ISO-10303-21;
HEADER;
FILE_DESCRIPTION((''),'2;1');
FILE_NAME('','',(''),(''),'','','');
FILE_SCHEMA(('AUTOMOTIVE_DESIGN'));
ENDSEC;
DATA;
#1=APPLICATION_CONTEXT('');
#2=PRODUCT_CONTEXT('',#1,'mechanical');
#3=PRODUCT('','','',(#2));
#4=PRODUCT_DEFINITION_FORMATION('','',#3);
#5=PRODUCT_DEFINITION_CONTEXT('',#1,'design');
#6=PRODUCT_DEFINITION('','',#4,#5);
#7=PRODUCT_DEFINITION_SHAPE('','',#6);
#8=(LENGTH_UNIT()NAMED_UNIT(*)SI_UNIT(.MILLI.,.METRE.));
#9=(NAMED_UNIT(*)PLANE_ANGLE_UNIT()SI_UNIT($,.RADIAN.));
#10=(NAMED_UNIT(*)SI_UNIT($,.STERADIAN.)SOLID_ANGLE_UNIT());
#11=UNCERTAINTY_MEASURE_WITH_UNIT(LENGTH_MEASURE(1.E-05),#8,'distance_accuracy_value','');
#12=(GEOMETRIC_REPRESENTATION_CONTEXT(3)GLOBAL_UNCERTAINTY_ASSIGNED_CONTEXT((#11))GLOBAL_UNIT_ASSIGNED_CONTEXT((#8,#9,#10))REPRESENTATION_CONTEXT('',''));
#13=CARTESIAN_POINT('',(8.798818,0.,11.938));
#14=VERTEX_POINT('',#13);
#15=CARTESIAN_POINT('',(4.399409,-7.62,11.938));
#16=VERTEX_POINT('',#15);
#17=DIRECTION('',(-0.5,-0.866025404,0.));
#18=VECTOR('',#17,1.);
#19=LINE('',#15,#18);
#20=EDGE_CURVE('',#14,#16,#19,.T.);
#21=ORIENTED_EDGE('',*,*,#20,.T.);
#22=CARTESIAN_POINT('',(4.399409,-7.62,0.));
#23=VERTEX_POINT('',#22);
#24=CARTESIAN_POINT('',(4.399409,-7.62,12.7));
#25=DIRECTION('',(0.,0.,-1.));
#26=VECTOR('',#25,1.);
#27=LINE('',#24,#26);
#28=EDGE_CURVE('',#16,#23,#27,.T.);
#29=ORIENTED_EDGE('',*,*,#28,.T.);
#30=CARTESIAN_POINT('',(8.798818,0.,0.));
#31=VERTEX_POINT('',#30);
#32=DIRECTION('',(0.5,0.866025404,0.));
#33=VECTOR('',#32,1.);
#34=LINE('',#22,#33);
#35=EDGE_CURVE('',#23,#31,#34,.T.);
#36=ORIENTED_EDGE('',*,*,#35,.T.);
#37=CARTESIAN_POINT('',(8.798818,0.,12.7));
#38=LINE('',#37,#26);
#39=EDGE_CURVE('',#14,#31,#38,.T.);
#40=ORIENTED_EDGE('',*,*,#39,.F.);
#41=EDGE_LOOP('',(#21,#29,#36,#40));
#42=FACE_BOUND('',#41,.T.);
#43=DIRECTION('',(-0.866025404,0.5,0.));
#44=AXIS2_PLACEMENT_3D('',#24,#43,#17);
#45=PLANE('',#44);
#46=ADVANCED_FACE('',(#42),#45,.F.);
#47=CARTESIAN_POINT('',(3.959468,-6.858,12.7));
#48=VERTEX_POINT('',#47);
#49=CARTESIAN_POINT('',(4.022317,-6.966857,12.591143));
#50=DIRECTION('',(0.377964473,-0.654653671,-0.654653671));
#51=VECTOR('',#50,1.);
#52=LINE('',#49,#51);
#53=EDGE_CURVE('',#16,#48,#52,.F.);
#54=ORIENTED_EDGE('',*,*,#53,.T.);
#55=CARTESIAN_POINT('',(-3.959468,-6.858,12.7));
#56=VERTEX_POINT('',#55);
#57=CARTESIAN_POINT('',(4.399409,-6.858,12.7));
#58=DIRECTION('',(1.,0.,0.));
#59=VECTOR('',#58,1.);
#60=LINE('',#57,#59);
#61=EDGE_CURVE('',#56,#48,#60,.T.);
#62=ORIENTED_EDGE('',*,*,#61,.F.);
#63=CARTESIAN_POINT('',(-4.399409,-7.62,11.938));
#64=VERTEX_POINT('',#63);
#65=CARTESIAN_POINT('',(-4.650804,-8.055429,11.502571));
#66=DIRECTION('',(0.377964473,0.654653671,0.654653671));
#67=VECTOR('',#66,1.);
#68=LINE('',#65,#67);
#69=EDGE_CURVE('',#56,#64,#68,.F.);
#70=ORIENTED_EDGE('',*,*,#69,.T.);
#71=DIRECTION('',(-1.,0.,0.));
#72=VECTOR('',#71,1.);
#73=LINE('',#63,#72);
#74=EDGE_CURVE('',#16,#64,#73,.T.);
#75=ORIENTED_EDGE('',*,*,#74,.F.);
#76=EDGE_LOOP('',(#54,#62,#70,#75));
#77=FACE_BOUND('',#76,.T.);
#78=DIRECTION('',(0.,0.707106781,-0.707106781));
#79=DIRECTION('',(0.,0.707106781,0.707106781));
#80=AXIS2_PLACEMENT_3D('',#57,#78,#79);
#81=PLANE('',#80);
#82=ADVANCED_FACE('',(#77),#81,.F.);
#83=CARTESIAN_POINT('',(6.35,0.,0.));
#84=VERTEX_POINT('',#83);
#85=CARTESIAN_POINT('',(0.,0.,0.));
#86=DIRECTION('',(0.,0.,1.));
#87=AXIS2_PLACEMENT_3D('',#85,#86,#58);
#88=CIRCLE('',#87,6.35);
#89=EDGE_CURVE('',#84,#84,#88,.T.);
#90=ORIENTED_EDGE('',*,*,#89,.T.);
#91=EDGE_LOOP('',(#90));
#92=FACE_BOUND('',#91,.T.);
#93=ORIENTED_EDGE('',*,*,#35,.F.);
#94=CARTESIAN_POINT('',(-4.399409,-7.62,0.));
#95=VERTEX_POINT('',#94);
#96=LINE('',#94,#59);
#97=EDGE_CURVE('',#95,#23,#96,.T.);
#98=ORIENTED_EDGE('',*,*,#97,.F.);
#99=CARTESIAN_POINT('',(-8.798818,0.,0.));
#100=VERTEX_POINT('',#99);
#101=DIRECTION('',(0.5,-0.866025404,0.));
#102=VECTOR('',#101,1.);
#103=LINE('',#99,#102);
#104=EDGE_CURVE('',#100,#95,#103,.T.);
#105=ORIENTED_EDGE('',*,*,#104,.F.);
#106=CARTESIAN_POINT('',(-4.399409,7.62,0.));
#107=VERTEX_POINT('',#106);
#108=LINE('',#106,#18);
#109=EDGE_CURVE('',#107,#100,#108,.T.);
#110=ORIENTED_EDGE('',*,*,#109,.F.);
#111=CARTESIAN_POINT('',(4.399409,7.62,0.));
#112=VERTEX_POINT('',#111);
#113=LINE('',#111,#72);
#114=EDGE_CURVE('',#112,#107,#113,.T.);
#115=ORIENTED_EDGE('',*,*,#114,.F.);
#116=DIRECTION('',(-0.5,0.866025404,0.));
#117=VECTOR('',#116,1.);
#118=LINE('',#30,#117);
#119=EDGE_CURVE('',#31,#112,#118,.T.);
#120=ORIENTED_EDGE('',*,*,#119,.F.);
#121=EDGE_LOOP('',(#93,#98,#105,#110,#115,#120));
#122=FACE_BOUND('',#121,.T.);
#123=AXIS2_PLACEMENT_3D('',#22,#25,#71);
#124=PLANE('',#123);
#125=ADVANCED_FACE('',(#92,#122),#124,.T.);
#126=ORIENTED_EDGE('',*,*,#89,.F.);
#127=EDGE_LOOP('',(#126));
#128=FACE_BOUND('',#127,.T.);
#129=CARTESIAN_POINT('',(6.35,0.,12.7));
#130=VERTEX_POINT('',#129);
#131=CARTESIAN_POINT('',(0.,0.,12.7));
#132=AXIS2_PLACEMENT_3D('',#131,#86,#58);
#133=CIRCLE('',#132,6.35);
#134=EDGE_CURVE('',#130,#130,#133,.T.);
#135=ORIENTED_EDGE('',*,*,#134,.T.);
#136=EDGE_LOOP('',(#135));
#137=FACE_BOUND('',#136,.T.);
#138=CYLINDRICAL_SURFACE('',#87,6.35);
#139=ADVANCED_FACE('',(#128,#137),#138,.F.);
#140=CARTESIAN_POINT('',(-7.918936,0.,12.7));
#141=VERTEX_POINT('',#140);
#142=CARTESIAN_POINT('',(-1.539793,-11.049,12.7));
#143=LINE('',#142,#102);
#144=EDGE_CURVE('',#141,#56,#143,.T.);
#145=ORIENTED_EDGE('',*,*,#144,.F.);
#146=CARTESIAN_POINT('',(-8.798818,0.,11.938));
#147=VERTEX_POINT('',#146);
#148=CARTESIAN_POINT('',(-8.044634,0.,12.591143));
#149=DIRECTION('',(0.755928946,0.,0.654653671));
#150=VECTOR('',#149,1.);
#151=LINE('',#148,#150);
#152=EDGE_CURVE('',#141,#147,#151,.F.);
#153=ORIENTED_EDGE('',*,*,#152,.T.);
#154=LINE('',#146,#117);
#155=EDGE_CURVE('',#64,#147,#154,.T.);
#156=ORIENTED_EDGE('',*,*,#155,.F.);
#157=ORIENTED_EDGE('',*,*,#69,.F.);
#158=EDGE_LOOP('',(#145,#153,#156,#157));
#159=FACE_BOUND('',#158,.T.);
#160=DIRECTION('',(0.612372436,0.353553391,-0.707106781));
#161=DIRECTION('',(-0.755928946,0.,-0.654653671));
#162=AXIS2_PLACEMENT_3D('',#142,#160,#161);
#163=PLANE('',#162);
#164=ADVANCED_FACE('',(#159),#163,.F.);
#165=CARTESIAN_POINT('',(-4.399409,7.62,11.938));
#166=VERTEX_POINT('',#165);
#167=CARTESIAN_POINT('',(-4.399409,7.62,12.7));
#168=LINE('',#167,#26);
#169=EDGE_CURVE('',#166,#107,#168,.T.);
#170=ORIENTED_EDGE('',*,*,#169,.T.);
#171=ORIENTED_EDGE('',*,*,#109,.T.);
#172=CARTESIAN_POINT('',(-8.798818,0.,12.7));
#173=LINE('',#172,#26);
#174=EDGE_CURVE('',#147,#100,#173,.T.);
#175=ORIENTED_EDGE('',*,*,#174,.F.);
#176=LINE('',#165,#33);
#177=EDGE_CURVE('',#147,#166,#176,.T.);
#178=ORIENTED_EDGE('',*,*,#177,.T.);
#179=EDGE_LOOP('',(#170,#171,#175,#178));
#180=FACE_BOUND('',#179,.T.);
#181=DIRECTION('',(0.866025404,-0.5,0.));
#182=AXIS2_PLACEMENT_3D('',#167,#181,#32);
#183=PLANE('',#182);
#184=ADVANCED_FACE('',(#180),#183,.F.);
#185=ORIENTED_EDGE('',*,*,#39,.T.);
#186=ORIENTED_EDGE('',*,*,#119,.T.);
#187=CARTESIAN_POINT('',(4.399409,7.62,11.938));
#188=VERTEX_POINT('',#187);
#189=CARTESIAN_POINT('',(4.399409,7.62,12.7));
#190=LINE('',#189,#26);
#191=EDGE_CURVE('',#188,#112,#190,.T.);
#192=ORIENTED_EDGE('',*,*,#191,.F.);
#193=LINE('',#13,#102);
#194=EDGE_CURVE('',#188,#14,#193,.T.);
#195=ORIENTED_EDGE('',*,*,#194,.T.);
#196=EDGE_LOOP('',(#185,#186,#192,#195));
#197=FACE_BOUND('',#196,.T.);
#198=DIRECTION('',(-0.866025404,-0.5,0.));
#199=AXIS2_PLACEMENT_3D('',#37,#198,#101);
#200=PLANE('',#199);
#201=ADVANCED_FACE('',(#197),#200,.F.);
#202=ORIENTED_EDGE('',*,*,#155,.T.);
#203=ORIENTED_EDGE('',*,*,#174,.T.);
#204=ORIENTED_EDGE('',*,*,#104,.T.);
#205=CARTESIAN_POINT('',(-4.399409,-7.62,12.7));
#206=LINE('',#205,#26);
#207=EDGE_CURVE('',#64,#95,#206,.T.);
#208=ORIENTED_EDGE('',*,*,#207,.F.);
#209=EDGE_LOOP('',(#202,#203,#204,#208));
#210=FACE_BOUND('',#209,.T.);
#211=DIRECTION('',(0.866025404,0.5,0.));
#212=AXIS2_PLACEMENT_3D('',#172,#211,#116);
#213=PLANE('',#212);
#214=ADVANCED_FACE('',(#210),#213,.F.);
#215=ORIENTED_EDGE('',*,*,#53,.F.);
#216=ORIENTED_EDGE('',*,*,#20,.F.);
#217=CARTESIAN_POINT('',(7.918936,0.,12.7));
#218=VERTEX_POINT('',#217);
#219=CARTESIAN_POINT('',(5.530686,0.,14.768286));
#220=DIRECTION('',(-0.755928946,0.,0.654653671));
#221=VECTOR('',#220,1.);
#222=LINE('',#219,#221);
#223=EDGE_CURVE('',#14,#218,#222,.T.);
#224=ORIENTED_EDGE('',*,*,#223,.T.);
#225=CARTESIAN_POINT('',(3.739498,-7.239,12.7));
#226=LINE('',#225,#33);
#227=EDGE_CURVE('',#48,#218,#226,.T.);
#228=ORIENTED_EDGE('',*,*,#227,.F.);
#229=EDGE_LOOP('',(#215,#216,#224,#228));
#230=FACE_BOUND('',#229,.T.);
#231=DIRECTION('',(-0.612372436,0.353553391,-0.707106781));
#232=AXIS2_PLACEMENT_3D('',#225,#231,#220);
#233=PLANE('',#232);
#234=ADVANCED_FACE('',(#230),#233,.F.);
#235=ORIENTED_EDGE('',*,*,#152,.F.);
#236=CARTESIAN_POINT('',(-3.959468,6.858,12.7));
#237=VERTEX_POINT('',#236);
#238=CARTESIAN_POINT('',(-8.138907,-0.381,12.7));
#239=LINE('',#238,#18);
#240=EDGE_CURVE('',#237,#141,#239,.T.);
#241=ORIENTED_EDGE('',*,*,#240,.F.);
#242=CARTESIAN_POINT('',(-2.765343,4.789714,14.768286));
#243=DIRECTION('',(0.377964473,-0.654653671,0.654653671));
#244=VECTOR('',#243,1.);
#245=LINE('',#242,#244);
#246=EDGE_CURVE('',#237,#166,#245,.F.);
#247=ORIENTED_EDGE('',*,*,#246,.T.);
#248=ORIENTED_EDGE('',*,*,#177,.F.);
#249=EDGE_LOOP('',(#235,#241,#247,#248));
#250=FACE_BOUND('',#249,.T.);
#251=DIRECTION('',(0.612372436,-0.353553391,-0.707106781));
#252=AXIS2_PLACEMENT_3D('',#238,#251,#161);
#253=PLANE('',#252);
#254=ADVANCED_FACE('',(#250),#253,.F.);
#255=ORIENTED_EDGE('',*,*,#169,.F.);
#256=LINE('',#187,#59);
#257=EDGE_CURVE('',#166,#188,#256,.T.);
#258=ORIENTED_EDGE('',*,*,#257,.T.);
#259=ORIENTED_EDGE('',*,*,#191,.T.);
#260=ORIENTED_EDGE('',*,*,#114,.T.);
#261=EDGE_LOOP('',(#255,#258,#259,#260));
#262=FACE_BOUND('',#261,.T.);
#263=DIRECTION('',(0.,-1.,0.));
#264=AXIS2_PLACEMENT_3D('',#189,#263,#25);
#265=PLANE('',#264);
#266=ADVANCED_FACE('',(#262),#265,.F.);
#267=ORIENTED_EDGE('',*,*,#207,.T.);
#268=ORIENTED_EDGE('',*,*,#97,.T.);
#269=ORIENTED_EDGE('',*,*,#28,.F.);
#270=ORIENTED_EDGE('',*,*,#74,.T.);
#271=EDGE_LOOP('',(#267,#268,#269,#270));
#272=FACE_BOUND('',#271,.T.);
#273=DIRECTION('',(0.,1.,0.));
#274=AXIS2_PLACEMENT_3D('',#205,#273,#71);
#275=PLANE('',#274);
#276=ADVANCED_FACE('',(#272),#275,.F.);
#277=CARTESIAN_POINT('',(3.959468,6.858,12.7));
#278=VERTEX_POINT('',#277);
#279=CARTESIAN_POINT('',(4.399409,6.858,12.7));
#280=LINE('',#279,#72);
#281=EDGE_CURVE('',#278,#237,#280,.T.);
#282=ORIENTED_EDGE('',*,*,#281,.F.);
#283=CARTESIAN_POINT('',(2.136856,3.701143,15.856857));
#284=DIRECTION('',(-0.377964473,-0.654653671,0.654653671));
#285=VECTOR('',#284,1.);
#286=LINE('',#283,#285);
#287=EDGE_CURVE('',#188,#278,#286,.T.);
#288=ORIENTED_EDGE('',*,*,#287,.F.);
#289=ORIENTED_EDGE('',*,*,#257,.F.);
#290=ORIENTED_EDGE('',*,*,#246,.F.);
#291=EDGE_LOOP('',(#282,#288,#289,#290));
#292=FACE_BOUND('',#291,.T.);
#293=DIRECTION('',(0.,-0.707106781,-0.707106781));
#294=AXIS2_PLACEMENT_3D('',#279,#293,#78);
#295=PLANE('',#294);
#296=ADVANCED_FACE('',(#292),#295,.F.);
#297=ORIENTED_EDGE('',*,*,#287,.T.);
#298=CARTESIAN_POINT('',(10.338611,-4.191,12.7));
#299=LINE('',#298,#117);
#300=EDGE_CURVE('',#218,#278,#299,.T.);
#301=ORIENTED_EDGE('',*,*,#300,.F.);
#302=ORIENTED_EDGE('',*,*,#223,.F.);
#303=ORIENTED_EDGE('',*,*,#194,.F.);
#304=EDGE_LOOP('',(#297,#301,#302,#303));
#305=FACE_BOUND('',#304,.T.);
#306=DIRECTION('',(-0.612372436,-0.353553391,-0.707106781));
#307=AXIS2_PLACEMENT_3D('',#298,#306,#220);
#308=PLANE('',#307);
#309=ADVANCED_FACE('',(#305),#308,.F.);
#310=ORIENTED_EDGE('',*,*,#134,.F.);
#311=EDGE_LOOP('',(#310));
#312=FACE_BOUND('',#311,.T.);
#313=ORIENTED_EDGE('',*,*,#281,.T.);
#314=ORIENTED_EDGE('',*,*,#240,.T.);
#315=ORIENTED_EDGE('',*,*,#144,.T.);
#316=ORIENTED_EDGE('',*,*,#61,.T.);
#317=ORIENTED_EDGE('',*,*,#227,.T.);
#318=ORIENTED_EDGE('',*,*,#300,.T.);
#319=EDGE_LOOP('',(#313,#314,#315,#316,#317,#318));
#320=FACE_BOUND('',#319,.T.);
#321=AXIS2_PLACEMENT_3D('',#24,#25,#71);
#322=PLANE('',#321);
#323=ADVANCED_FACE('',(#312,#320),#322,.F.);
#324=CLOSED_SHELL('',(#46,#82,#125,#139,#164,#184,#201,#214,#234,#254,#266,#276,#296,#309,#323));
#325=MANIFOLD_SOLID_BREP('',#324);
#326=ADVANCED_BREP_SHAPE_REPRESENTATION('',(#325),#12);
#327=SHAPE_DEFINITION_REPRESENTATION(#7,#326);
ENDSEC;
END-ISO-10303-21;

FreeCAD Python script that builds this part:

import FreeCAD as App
import Part
import Sketcher
from FreeCAD import Vector
Q = App.Units.Quantity


def edges_at(feature, points):
    """Names of the edges that pass closest to the given points."""
    edges = feature.Shape.Edges
    near = lambda p: min(range(len(edges)), key=lambda i: edges[i].distToShape(Part.Vertex(*p))[0])
    return sorted({f"Edge{near(p) + 1}" for p in points})

doc = App.newDocument("Part")
body = doc.addObject("PartDesign::Body", "Body")

# Sketch on XY plane
sketch1 = doc.addObject("Sketcher::SketchObject", "Sketch")
body.addObject(sketch1)
sketch1.AttachmentSupport = (doc.XY_Plane, [""])
sketch1.MapMode = "FlatFace"
sketch1.addGeometry([
    Part.LineSegment(Vector(8.798818, 0, 0), Vector(4.399409, 7.62, 0)),  # 0
    Part.LineSegment(Vector(4.399409, 7.62, 0), Vector(-4.399409, 7.62, 0)),  # 1
    Part.LineSegment(Vector(-4.399409, 7.62, 0), Vector(-8.798818, 0, 0)),  # 2
    Part.LineSegment(Vector(-8.798818, 0, 0), Vector(-4.399409, -7.62, 0)),  # 3
    Part.LineSegment(Vector(-4.399409, -7.62, 0), Vector(4.399409, -7.62, 0)),  # 4
    Part.LineSegment(Vector(4.399409, -7.62, 0), Vector(8.798818, 0, 0)),  # 5
], False)
sketch1.addConstraint([
    Sketcher.Constraint("Coincident", 0, 2, 1, 1),
    Sketcher.Constraint("Coincident", 1, 2, 2, 1),
    Sketcher.Constraint("Coincident", 2, 2, 3, 1),
    Sketcher.Constraint("Coincident", 3, 2, 4, 1),
    Sketcher.Constraint("Coincident", 4, 2, 5, 1),
    Sketcher.Constraint("Coincident", 5, 2, 0, 1),
    Sketcher.Constraint("Horizontal", 1),
    Sketcher.Constraint("Horizontal", 4),
    Sketcher.Constraint("Symmetric", 0, 2, 3, 2, -1, 1),
    Sketcher.Constraint("Symmetric", 2, 2, 5, 2, -1, 1),
    Sketcher.Constraint("PointOnObject", 2, 2, -1),
    Sketcher.Constraint("Parallel", 2, 5),
    Sketcher.Constraint("Vertical", 1, 2, 3, 2),
    Sketcher.Constraint("Angle", 0, Q("120 deg")),
    Sketcher.Constraint("DistanceY", -1, 1, 0, 2, Q("0.3 in")),
    Sketcher.Constraint("DistanceX", 1, 2, 1, 1, 8.798818),
])
pad1 = doc.addObject("PartDesign::Pad", "Pad")
body.addObject(pad1)
pad1.Profile = sketch1
pad1.Length = Q("0.5 in")

# Sketch on XY plane
sketch2 = doc.addObject("Sketcher::SketchObject", "Sketch001")
body.addObject(sketch2)
sketch2.AttachmentSupport = (doc.XY_Plane, [""])
sketch2.MapMode = "FlatFace"
sketch2.AttachmentOffset = App.Placement(Vector(0, 0, 0.5 * 25.4), App.Rotation())
sketch2.addGeometry(Part.Circle(Vector(0, 0, 0), Vector(0, 0, 1), 6.35), False)
sketch2.addConstraint([
    Sketcher.Constraint("Coincident", 0, 3, -1, 1),
    Sketcher.Constraint("Diameter", 0, Q("0.5 in")),
])
pocket1 = doc.addObject("PartDesign::Pocket", "Pocket")
body.addObject(pocket1)
pocket1.Profile = sketch2
pocket1.Type = "ThroughAll"
doc.recompute()

chamfer = doc.addObject("PartDesign::Chamfer", "Chamfer")
body.addObject(chamfer)
chamfer.Base = (pocket1, edges_at(pocket1, [
    (0, 7.62, 12.7),
    (-6.599, 3.81, 12.7),
    (-6.599, -3.81, 12.7),
    (0, -7.62, 12.7),
    (6.599, -3.81, 12.7),
    (6.599, 3.81, 12.7),
]))
chamfer.Size = Q("0.03 in")

doc.recompute()
